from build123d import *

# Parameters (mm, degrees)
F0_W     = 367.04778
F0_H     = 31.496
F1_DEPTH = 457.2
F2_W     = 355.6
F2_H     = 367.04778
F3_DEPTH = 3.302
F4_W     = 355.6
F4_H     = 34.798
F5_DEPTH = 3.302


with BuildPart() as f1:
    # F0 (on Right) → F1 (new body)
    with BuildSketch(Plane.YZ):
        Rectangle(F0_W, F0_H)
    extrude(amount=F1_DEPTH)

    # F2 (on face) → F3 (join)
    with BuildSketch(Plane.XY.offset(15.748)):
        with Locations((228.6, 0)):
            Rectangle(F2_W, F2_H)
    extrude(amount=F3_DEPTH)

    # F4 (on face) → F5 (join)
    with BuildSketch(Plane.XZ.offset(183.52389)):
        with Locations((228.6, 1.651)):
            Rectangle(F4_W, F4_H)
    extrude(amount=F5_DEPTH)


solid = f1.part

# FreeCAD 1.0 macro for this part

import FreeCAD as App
import Part
import Sketcher
from FreeCAD import Vector
Q = App.Units.Quantity


def add_polygon(sketch, points):
    """Adds a closed chain of lines whose ends are joined by coincident constraints."""
    first, n = sketch.GeometryCount, len(points)
    for a, b in zip(points, points[1:] + points[:1]):
        sketch.addGeometry(Part.LineSegment(App.Vector(*a, 0), App.Vector(*b, 0)), False)
    for i in range(n):
        sketch.addConstraint(Sketcher.Constraint("Coincident", first + i, 2, first + (i + 1) % n, 1))

doc = App.newDocument("Part")
body = doc.addObject("PartDesign::Body", "Body")

# Sketch on YZ plane
sketch1 = doc.addObject("Sketcher::SketchObject", "Sketch")
body.addObject(sketch1)
sketch1.AttachmentSupport = (doc.YZ_Plane, [""])
sketch1.MapMode = "FlatFace"
add_polygon(sketch1, [(-184, 16), (-184, -16), (184, -16), (184, 16)])  # lines 0-3
sketch1.addConstraint([
    Sketcher.Constraint("Vertical", 0),
    Sketcher.Constraint("Horizontal", 1),
    Sketcher.Constraint("Vertical", 2),
    Sketcher.Constraint("Horizontal", 3),
    Sketcher.Constraint("Symmetric", 0, 2, 2, 2, -1, 1),
    Sketcher.Constraint("DistanceY", 0, 2, 0, 1, Q("1.24 in")),
    Sketcher.Constraint("DistanceX", 1, 1, 1, 2, Q("14.4507 in")),
])
pad1 = doc.addObject("PartDesign::Pad", "Pad")
body.addObject(pad1)
pad1.Profile = sketch1
pad1.Length = Q("18 in")

# Sketch on XY plane
sketch2 = doc.addObject("Sketcher::SketchObject", "Sketch001")
body.addObject(sketch2)
sketch2.AttachmentSupport = (doc.XY_Plane, [""])
sketch2.MapMode = "FlatFace"
sketch2.AttachmentOffset = App.Placement(Vector(0, 0, 0.62 * 25.4), App.Rotation())
add_polygon(sketch2, [(51, 184), (51, -184), (406, -184), (406, 184)])  # lines 0-3
sketch2.addConstraint([
    Sketcher.Constraint("Vertical", 0),
    Sketcher.Constraint("Horizontal", 1),
    Sketcher.Constraint("Vertical", 2),
    Sketcher.Constraint("Horizontal", 3),
    Sketcher.Constraint("DistanceX", 1, 1, 1, 2, Q("14 in")),
    Sketcher.Constraint("DistanceX", -1, 1, 0, 2, Q("2 in")),
    Sketcher.Constraint("DistanceY", 0, 2, 0, 1, Q("14.4507 in")),
    Sketcher.Constraint("DistanceY", 0, 2, -1, 1, Q("183.52389 mm")),
])
pad2 = doc.addObject("PartDesign::Pad", "Pad001")
body.addObject(pad2)
pad2.Profile = sketch2
pad2.Length = Q("0.13 in")

# Sketch on XZ plane
sketch3 = doc.addObject("Sketcher::SketchObject", "Sketch002")
body.addObject(sketch3)
sketch3.AttachmentSupport = (doc.XZ_Plane, [""])
sketch3.MapMode = "FlatFace"
sketch3.AttachmentOffset = App.Placement(Vector(0, 0, 183.52389), App.Rotation())
add_polygon(sketch3, [(51, 19), (51, -16), (406, -16), (406, 19)])  # lines 0-3
sketch3.addConstraint([
    Sketcher.Constraint("Vertical", 0),
    Sketcher.Constraint("Horizontal", 1),
    Sketcher.Constraint("Vertical", 2),
    Sketcher.Constraint("Horizontal", 3),
    Sketcher.Constraint("DistanceX", 1, 1, 1, 2, Q("14 in")),
    Sketcher.Constraint("DistanceX", -1, 1, 0, 2, Q("2 in")),
    Sketcher.Constraint("DistanceY", 0, 2, 0, 1, Q("1.37 in")),
    Sketcher.Constraint("DistanceY", 0, 2, -1, 1, Q("0.62 in")),
])
pad3 = doc.addObject("PartDesign::Pad", "Pad002")
body.addObject(pad3)
pad3.Profile = sketch3
pad3.Length = Q("0.13 in")

doc.recompute()
